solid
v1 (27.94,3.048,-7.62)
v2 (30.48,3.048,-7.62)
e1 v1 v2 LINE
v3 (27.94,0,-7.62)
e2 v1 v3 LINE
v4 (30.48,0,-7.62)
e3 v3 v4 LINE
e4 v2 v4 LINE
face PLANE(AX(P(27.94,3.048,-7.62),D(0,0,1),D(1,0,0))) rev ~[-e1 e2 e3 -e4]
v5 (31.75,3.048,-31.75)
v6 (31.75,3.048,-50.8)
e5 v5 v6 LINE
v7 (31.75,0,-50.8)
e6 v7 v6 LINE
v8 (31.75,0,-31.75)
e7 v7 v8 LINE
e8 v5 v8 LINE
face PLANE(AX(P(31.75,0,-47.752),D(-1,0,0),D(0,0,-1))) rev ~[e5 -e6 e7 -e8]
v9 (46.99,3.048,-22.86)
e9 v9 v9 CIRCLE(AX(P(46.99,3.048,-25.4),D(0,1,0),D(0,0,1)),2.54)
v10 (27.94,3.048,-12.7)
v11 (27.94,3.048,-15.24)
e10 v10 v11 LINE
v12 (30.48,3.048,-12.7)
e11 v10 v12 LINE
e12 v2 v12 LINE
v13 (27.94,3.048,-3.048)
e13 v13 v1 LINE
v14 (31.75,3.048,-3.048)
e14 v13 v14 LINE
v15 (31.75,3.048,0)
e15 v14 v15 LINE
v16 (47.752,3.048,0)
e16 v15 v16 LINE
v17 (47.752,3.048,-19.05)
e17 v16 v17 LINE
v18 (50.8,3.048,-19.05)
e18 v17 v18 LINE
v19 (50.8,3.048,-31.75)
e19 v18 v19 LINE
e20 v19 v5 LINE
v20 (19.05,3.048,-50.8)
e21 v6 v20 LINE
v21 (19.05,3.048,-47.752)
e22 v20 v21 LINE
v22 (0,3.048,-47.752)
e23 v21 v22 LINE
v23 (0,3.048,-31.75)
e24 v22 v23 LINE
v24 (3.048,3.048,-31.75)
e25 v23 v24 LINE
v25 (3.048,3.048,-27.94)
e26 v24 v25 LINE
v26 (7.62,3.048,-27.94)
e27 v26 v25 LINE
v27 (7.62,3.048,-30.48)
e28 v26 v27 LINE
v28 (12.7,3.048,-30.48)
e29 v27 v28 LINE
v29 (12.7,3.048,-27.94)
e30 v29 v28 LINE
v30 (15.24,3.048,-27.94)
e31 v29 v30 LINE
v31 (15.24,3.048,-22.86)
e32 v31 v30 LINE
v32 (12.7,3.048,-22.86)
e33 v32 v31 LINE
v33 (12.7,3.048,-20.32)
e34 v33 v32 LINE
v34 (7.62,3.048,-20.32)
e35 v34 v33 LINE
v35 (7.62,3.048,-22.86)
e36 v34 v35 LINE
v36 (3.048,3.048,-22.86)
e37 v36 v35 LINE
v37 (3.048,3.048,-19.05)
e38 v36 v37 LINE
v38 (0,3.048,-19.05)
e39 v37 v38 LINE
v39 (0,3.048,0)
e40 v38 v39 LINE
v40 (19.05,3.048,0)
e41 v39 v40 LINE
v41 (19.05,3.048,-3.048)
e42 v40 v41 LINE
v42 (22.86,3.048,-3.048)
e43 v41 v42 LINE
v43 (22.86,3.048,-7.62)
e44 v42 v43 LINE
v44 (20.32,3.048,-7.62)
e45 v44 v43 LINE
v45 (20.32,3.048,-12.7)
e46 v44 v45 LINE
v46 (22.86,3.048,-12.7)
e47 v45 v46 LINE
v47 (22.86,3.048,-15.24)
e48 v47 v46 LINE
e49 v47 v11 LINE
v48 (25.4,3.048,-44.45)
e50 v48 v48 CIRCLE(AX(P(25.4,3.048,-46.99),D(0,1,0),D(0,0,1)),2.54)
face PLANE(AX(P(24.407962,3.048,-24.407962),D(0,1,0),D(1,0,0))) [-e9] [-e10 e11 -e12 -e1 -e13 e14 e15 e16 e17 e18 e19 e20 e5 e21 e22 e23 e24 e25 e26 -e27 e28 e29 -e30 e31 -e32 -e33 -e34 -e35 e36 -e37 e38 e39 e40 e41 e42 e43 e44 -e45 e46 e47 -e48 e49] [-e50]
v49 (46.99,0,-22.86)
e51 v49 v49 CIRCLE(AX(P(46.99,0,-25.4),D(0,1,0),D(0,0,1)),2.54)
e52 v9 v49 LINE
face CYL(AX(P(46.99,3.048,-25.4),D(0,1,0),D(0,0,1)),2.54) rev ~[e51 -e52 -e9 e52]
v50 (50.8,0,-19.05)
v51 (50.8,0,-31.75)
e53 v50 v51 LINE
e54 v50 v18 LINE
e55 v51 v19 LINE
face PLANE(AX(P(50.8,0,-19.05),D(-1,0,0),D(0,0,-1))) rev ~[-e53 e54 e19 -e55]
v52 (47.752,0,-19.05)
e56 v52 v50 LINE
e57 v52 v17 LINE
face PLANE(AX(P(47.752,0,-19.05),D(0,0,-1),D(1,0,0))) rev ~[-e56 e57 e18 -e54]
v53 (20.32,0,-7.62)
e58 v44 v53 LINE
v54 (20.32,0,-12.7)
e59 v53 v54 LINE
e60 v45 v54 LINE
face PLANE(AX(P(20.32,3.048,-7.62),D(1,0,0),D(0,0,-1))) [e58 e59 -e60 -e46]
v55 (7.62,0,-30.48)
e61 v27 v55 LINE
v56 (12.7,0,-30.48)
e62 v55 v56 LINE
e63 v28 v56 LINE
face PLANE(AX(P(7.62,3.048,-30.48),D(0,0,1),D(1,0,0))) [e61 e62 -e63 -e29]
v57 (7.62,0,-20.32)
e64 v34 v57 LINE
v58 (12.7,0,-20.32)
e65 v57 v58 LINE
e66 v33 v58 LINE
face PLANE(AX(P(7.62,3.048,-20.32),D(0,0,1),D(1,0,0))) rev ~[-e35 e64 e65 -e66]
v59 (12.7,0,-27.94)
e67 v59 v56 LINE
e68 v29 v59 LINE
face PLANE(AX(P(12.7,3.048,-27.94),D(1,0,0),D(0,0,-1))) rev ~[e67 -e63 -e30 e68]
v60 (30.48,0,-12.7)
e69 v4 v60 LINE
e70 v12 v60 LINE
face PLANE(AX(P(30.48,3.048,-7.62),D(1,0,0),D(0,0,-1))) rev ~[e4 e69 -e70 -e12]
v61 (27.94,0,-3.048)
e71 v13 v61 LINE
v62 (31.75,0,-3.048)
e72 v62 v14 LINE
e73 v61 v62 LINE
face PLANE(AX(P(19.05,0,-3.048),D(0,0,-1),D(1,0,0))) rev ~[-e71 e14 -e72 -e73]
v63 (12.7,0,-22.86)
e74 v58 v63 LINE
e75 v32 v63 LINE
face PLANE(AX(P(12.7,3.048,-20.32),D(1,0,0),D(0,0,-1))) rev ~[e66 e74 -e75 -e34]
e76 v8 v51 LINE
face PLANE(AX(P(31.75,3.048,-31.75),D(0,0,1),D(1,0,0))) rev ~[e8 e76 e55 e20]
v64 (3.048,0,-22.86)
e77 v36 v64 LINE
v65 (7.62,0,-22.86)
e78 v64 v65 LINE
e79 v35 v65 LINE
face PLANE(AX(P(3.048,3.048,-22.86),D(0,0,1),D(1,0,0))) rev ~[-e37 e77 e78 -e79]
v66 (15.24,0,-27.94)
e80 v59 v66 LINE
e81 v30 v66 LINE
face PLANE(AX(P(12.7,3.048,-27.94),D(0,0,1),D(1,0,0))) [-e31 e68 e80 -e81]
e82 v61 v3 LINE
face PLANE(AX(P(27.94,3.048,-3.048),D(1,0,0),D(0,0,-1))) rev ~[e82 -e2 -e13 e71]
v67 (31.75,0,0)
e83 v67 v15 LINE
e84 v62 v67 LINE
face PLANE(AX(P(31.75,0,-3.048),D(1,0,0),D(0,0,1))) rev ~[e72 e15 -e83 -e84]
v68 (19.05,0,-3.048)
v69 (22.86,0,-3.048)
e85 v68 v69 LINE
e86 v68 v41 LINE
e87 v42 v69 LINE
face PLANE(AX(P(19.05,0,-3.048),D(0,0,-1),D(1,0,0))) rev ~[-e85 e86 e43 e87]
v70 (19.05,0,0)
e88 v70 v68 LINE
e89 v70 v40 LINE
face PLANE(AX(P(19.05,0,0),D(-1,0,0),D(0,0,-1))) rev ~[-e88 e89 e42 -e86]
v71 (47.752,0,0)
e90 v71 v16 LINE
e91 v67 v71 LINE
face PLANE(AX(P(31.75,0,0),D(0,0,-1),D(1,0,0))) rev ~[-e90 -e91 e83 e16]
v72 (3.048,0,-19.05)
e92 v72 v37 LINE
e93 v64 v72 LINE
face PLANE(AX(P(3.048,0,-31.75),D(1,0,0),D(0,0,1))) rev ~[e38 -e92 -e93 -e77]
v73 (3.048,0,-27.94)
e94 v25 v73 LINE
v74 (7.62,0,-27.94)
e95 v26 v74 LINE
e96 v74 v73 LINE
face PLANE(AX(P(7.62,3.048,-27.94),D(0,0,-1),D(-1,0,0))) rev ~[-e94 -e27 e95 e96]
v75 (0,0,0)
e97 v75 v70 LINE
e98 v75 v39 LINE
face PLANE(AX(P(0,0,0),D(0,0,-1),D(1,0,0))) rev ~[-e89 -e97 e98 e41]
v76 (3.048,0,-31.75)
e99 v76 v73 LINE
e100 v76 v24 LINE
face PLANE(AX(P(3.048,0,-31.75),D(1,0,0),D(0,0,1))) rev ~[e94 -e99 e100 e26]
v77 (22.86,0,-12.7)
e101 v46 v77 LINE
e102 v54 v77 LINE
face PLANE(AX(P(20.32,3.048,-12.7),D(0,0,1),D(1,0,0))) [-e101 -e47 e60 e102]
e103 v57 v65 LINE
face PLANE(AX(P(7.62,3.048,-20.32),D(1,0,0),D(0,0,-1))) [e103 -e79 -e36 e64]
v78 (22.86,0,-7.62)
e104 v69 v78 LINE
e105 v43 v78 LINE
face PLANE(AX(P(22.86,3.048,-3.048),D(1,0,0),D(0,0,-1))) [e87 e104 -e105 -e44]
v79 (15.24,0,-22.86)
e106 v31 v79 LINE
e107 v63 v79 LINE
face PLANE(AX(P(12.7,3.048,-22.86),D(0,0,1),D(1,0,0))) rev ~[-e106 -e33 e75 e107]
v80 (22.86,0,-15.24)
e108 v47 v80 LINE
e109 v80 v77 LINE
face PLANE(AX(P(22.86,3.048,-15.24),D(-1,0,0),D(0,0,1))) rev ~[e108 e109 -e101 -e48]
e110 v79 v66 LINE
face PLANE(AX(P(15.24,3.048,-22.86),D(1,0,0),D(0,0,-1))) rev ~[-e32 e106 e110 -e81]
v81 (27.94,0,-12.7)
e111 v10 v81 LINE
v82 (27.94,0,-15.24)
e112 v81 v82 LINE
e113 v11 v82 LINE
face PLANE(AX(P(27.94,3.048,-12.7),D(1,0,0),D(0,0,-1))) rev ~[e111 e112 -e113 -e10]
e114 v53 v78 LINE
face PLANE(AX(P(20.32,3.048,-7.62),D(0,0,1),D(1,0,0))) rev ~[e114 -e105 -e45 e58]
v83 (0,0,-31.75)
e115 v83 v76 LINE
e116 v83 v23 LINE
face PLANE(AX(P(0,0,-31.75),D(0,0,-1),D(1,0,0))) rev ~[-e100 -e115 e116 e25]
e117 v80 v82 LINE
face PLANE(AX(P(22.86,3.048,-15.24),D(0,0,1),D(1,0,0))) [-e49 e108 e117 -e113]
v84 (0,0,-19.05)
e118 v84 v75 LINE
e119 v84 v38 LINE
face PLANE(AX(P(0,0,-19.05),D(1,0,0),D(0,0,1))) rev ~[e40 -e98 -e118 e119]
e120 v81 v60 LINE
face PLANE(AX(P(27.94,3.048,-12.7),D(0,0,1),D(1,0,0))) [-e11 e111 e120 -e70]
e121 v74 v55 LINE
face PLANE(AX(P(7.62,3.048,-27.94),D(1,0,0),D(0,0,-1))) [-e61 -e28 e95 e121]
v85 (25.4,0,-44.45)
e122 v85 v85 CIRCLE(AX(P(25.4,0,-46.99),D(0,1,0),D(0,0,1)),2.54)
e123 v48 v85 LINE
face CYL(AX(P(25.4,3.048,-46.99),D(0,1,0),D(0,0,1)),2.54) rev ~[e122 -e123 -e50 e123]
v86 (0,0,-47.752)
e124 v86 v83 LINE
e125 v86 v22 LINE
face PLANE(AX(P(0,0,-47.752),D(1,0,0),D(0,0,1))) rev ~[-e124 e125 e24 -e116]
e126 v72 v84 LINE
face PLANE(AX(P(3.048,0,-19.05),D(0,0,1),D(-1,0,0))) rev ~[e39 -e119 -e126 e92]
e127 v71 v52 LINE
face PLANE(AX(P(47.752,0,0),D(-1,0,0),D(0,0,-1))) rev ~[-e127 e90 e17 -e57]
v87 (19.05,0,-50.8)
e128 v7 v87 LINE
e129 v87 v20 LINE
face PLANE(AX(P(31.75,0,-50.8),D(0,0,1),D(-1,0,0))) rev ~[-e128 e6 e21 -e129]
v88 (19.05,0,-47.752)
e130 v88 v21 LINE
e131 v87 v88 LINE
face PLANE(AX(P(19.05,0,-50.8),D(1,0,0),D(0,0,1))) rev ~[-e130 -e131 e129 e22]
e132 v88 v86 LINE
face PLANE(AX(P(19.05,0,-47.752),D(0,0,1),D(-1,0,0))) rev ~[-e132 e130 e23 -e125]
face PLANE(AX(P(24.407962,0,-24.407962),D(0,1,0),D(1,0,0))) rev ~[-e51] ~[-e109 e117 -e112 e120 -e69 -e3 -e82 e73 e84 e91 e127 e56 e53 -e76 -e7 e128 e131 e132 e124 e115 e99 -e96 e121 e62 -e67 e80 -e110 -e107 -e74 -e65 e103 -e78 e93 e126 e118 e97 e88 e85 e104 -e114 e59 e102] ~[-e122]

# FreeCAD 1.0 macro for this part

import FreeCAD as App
import Part
import Sketcher
from FreeCAD import Vector
Q = App.Units.Quantity


def add_polygon(sketch, points):
    """Adds a closed chain of lines whose ends are joined by coincident constraints."""
    first, n = sketch.GeometryCount, len(points)
    for a, b in zip(points, points[1:] + points[:1]):
        sketch.addGeometry(Part.LineSegment(App.Vector(*a, 0), App.Vector(*b, 0)), False)
    for i in range(n):
        sketch.addConstraint(Sketcher.Constraint("Coincident", first + i, 2, first + (i + 1) % n, 1))

doc = App.newDocument("Part")
params = doc.addObject("Spreadsheet::Sheet", "Params")
for row, (alias, value) in enumerate([
    ("sketch1_width", "0.5 in"),
    ("sketch1_width2", "0.75 in"),
    ("sketch1_width3", "0.63 in"),
    ("pad1_length", "0.12 in"),
    ("sketch2_diameter", "0.2 in"),
    ("sketch2_width", "0.2 in"),
    ("sketch2_width2", "0.1 in"),
    ("sketch2_width3", "0.18 in"),
    ("pocket1_length", "0.12 in"),
    ("sketch3_width", "0.63 in"),
    ("pocket2_length", "0.12 in"),
], start=1):
    params.set(f"A{row}", alias)
    params.set(f"B{row}", "=" + value)
    params.setAlias(f"B{row}", alias)

body = doc.addObject("PartDesign::Body", "Body")

# Sketch on XZ plane
sketch1 = body.newObject("Sketcher::SketchObject", "Sketch")
sketch1.AttachmentSupport = (doc.getObject("XZ_Plane"), [""])
sketch1.MapMode = "FlatFace"
add_polygon(sketch1, [(0, -19.05), (0, 0), (19.05, 0), (19.05, -3.048), (31.75, -3.048), (31.75, 0), (47.752, 0), (47.752, -19.05), (50.8, -19.05), (50.8, -31.75), (47.752, -31.75), (47.752, -47.752), (31.75, -47.752), (31.75, -50.8), (19.05, -50.8), (19.05, -47.752), (0, -47.752), (0, -31.75), (3.048, -31.75), (3.048, -19.05)])  # lines 0-19
sketch1.addConstraint([
    Sketcher.Constraint("Vertical", 0),
    Sketcher.Constraint("Horizontal", 1),
    Sketcher.Constraint("Vertical", 2),
    Sketcher.Constraint("Horizontal", 3),
    Sketcher.Constraint("Vertical", 4),
    Sketcher.Constraint("Horizontal", 5),
    Sketcher.Constraint("Vertical", 6),
    Sketcher.Constraint("Horizontal", 7),
    Sketcher.Constraint("Vertical", 8),
    Sketcher.Constraint("Horizontal", 9),
    Sketcher.Constraint("Vertical", 10),
    Sketcher.Constraint("Horizontal", 11),
    Sketcher.Constraint("Vertical", 12),
    Sketcher.Constraint("Horizontal", 13),
    Sketcher.Constraint("Vertical", 14),
    Sketcher.Constraint("Horizontal", 15),
    Sketcher.Constraint("Vertical", 16),
    Sketcher.Constraint("Horizontal", 17),
    Sketcher.Constraint("Vertical", 18),
    Sketcher.Constraint("Horizontal", 19),
    Sketcher.Constraint("Coincident", 0, 2, -1, 1),
    Sketcher.Constraint("PointOnObject", 4, 2, -1),
    Sketcher.Constraint("PointOnObject", 15, 2, -2),
    Sketcher.Constraint("Horizontal", 11, 2, 14, 2),
    Sketcher.Constraint("Horizontal", 9, 2, 16, 2),
    Sketcher.Constraint("Horizontal", 7, 2, 18, 2),
    Sketcher.Constraint("Vertical", 6, 2, 9, 2),
    Sketcher.Constraint("Vertical", 4, 2, 11, 2),
    Sketcher.Constraint("Vertical", 2, 2, 13, 2),
    Sketcher.Constraint("Equal", 9, 17),
    Sketcher.Constraint("Equal", 15, 0),
    Sketcher.Constraint("Equal", 19, 2),
    Sketcher.Constraint("Equal", 13, 8),
    Sketcher.Constraint("Equal", 11, 10),
    Sketcher.Constraint("Equal", 4, 12),
    Sketcher.Constraint("DistanceX", 3, 1, 3, 2, Q("0.5 in")),
    Sketcher.Constraint("DistanceX", -1, 1, 7, 2, Q("2 in")),
    Sketcher.Constraint("DistanceX", 1, 1, 1, 2, Q("0.75 in")),
    Sketcher.Constraint("DistanceX", 5, 1, 5, 2, Q("0.63 in")),
])
sketch1.setExpression("Constraints[55]", "Params.sketch1_width")
sketch1.setExpression("Constraints[57]", "Params.sketch1_width2")
sketch1.setExpression("Constraints[58]", "Params.sketch1_width3")
pad1 = body.newObject("PartDesign::Pad", "Pad")
pad1.Profile = sketch1
pad1.setExpression("Length", "Params.pad1_length")
pad1.Reversed = True

# Sketch on XZ plane
sketch2 = body.newObject("Sketcher::SketchObject", "Sketch001")
sketch2.AttachmentSupport = (doc.getObject("XZ_Plane"), [""])
sketch2.MapMode = "FlatFace"
sketch2.AttachmentOffset = App.Placement(Vector(0, 0, -0.12 * 25.4), App.Rotation())
add_polygon(sketch2, [(3.048, -27.94), (3.048, -22.86), (7.62, -22.86), (7.62, -20.32), (12.7, -20.32), (12.7, -22.86), (15.24, -22.86), (15.24, -27.94), (12.7, -27.94), (12.7, -30.48), (7.62, -30.48), (7.62, -27.94)])  # lines 0-11
add_polygon(sketch2, [(22.86, -15.24), (22.86, -12.7), (20.32, -12.7), (20.32, -7.62), (22.86, -7.62), (22.86, -3.048), (27.94, -3.048), (27.94, -7.62), (30.48, -7.62), (30.48, -12.7), (27.94, -12.7), (27.94, -15.24)])  # lines 12-23
sketch2.addGeometry(Part.Circle(Vector(46.99, -25.4, 0), Vector(0, 0, 1), 2.54), False)  # 24
sketch2.addGeometry(Part.Circle(Vector(25.4, -46.99, 0), Vector(0, 0, 1), 2.54), False)  # 25
sketch2.addConstraint([
    Sketcher.Constraint("Vertical", 0),
    Sketcher.Constraint("Horizontal", 1),
    Sketcher.Constraint("Vertical", 2),
    Sketcher.Constraint("Horizontal", 3),
    Sketcher.Constraint("Vertical", 4),
    Sketcher.Constraint("Horizontal", 5),
    Sketcher.Constraint("Vertical", 6),
    Sketcher.Constraint("Horizontal", 7),
    Sketcher.Constraint("Vertical", 8),
    Sketcher.Constraint("Horizontal", 9),
    Sketcher.Constraint("Vertical", 10),
    Sketcher.Constraint("Horizontal", 11),
    Sketcher.Constraint("Vertical", 12),
    Sketcher.Constraint("Horizontal", 13),
    Sketcher.Constraint("Vertical", 14),
    Sketcher.Constraint("Horizontal", 15),
    Sketcher.Constraint("Vertical", 16),
    Sketcher.Constraint("Horizontal", 17),
    Sketcher.Constraint("Vertical", 18),
    Sketcher.Constraint("Horizontal", 19),
    Sketcher.Constraint("Vertical", 20),
    Sketcher.Constraint("Horizontal", 21),
    Sketcher.Constraint("Vertical", 22),
    Sketcher.Constraint("Horizontal", 23),
    Sketcher.Constraint("Equal", 24, 25),
    Sketcher.Constraint("Horizontal", 1, 2, 4, 2),
    Sketcher.Constraint("Horizontal", 7, 2, 10, 2),
    Sketcher.Constraint("Horizontal", 15, 2, 18, 2),
    Sketcher.Constraint("Horizontal", 13, 2, 20, 2),
    Sketcher.Constraint("Vertical", 4, 2, 7, 2),
    Sketcher.Constraint("Vertical", 2, 2, 9, 2),
    Sketcher.Constraint("Vertical", 12, 2, 15, 2),
    Sketcher.Constraint("Vertical", 18, 2, 21, 2),
    Sketcher.Constraint("Equal", 7, 13),
    Sketcher.Constraint("Equal", 9, 17),
    Sketcher.Constraint("Equal", 15, 19),
    Sketcher.Constraint("Equal", 23, 0),
    Sketcher.Constraint("Equal", 21, 2),
    Sketcher.Constraint("Equal", 4, 8),
    Sketcher.Constraint("Equal", 10, 12),
    Sketcher.Constraint("Equal", 6, 14),
    Sketcher.Constraint("Equal", 11, 16),
    Sketcher.Constraint("Diameter", 24, Q("0.2 in")),
    Sketcher.Constraint("DistanceX", 3, 1, 3, 2, Q("0.2 in")),
    Sketcher.Constraint("DistanceX", 5, 1, 5, 2, Q("0.1 in")),
    Sketcher.Constraint("DistanceY", 24, 3, -1, 1, Q("1 in")),
    Sketcher.Constraint("DistanceX", -1, 1, 25, 3, Q("1 in")),
    Sketcher.Constraint("DistanceX", 1, 1, 1, 2, Q("0.18 in")),
    Sketcher.Constraint("DistanceY", 0, 2, -1, 1, Q("0.9 in")),
    Sketcher.Constraint("DistanceX", -1, 1, 1, 2, Q("0.3 in")),
    Sketcher.Constraint("DistanceX", -1, 1, 12, 2, Q("0.9 in")),
    Sketcher.Constraint("DistanceY", 12, 2, -1, 1, Q("0.5 in")),
    Sketcher.Constraint("DistanceX", -1, 1, 24, 3, Q("1.85 in")),
    Sketcher.Constraint("DistanceY", 25, 3, -1, 1, Q("1.85 in")),
])
sketch2.setExpression("Constraints[66]", "Params.sketch2_diameter")
sketch2.setExpression("Constraints[67]", "Params.sketch2_width")
sketch2.setExpression("Constraints[68]", "Params.sketch2_width2")
sketch2.setExpression("Constraints[71]", "Params.sketch2_width3")
pocket1 = body.newObject("PartDesign::Pocket", "Pocket")
pocket1.Profile = sketch2
pocket1.setExpression("Length", "Params.pocket1_length")
pocket1.Reversed = True

# Sketch on XZ plane
sketch3 = body.newObject("Sketcher::SketchObject", "Sketch002")
sketch3.AttachmentSupport = (doc.getObject("XZ_Plane"), [""])
sketch3.MapMode = "FlatFace"
sketch3.AttachmentOffset = App.Placement(Vector(0, 0, -0.12 * 25.4), App.Rotation())
add_polygon(sketch3, [(31.75, -47.752), (31.75, -31.75), (47.752, -31.75), (47.752, -47.752)])  # lines 0-3
sketch3.addConstraint([
    Sketcher.Constraint("Vertical", 0),
    Sketcher.Constraint("Horizontal", 1),
    Sketcher.Constraint("Vertical", 2),
    Sketcher.Constraint("Horizontal", 3),
    Sketcher.Constraint("Equal", 3, 0),
    Sketcher.Constraint("DistanceX", 1, 1, 1, 2, Q("0.63 in")),
    Sketcher.Constraint("DistanceX", -1, 1, 0, 2, Q("1.25 in")),
    Sketcher.Constraint("DistanceY", 0, 2, -1, 1, Q("1.25 in")),
])
sketch3.setExpression("Constraints[9]", "Params.sketch3_width")
pocket2 = body.newObject("PartDesign::Pocket", "Pocket001")
pocket2.Profile = sketch3
pocket2.setExpression("Length", "Params.pocket2_length")
pocket2.Reversed = True

doc.recompute()
